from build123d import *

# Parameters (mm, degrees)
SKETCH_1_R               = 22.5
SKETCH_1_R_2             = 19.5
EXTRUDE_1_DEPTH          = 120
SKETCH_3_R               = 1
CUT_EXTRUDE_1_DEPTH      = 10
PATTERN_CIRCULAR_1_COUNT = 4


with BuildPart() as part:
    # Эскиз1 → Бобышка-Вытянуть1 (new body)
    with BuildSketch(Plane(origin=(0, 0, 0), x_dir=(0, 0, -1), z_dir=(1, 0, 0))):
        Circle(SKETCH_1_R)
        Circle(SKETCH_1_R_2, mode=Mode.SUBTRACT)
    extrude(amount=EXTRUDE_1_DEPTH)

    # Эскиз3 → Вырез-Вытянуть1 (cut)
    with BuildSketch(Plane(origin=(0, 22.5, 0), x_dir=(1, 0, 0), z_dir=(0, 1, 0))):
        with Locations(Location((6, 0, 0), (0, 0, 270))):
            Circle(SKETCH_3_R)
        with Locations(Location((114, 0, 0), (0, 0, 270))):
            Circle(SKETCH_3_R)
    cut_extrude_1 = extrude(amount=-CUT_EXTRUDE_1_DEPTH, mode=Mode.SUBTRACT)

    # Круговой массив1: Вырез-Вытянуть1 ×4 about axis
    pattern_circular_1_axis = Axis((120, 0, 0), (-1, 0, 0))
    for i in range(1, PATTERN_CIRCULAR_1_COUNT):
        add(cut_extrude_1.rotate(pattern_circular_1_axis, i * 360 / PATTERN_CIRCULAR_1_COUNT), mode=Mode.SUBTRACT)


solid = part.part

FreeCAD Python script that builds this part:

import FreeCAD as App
import Part
import Sketcher
from FreeCAD import Vector
Q = App.Units.Quantity

doc = App.newDocument("Part")
params = doc.addObject("Spreadsheet::Sheet", "Params")
for row, (alias, value) in enumerate([
    ("sketch1_diameter", "45 mm"),
    ("sketch1_diameter2", "39 mm"),
    ("pad1_length", "120 mm"),
    ("sketch2_diameter", "2 mm"),
    ("pocket1_length", "10 mm"),
], start=1):
    params.set(f"A{row}", alias)
    params.set(f"B{row}", "=" + value)
    params.setAlias(f"B{row}", alias)

body = doc.addObject("PartDesign::Body", "Body")

# Sketch on YZ plane
sketch1 = body.newObject("Sketcher::SketchObject", "Sketch")
sketch1.AttachmentSupport = (doc.getObject("YZ_Plane"), [""])
sketch1.MapMode = "FlatFace"
sketch1.addGeometry(Part.Circle(Vector(0, 0, 0), Vector(0, 0, 1), 22.5), False)
sketch1.addGeometry(Part.Circle(Vector(0, 0, 0), Vector(0, 0, 1), 19.5), False)
sketch1.addConstraint(Sketcher.Constraint("Coincident", 0, 3, -1, 1))
sketch1.addConstraint(Sketcher.Constraint("Coincident", 1, 3, -1, 1))
sketch1.addConstraint(Sketcher.Constraint("Diameter", 0, Q("45 mm")))
sketch1.addConstraint(Sketcher.Constraint("Diameter", 1, Q("39 mm")))
sketch1.setExpression("Constraints[2]", "Params.sketch1_diameter")
sketch1.setExpression("Constraints[3]", "Params.sketch1_diameter2")
pad1 = body.newObject("PartDesign::Pad", "Pad")
pad1.Profile = sketch1
pad1.setExpression("Length", "Params.pad1_length")

# Sketch on XZ plane
sketch2 = body.newObject("Sketcher::SketchObject", "Sketch001")
sketch2.AttachmentSupport = (doc.getObject("XZ_Plane"), [""])
sketch2.MapMode = "FlatFace"
sketch2.AttachmentOffset = App.Placement(Vector(0, 0, -22.5), App.Rotation())
sketch2.addGeometry(Part.Circle(Vector(6, 0, 0), Vector(0, 0, 1), 1), False)
sketch2.addGeometry(Part.Circle(Vector(114, 0, 0), Vector(0, 0, 1), 1), False)
sketch2.addConstraint(Sketcher.Constraint("Equal", 0, 1))
sketch2.addConstraint(Sketcher.Constraint("PointOnObject", 0, 3, -1))
sketch2.addConstraint(Sketcher.Constraint("PointOnObject", 1, 3, -1))
sketch2.addConstraint(Sketcher.Constraint("Diameter", 0, Q("2 mm")))
sketch2.addConstraint(Sketcher.Constraint("DistanceX", -1, 1, 0, 3, Q("6 mm")))
sketch2.addConstraint(Sketcher.Constraint("DistanceX", -1, 1, 1, 3, Q("114 mm")))
sketch2.setExpression("Constraints[3]", "Params.sketch2_diameter")
pocket1 = body.newObject("PartDesign::Pocket", "Pocket")
pocket1.Profile = sketch2
pocket1.setExpression("Length", "Params.pocket1_length")
pocket1.Reversed = True
doc.recompute()

polarpattern = body.newObject("PartDesign::PolarPattern", "PolarPattern")
polarpattern.Originals = [pocket1]
polarpattern.Axis = (doc.getObject("X_Axis"), [""])
polarpattern.Angle = 360
polarpattern.Occurrences = 4
body.Tip = polarpattern

doc.recompute()
